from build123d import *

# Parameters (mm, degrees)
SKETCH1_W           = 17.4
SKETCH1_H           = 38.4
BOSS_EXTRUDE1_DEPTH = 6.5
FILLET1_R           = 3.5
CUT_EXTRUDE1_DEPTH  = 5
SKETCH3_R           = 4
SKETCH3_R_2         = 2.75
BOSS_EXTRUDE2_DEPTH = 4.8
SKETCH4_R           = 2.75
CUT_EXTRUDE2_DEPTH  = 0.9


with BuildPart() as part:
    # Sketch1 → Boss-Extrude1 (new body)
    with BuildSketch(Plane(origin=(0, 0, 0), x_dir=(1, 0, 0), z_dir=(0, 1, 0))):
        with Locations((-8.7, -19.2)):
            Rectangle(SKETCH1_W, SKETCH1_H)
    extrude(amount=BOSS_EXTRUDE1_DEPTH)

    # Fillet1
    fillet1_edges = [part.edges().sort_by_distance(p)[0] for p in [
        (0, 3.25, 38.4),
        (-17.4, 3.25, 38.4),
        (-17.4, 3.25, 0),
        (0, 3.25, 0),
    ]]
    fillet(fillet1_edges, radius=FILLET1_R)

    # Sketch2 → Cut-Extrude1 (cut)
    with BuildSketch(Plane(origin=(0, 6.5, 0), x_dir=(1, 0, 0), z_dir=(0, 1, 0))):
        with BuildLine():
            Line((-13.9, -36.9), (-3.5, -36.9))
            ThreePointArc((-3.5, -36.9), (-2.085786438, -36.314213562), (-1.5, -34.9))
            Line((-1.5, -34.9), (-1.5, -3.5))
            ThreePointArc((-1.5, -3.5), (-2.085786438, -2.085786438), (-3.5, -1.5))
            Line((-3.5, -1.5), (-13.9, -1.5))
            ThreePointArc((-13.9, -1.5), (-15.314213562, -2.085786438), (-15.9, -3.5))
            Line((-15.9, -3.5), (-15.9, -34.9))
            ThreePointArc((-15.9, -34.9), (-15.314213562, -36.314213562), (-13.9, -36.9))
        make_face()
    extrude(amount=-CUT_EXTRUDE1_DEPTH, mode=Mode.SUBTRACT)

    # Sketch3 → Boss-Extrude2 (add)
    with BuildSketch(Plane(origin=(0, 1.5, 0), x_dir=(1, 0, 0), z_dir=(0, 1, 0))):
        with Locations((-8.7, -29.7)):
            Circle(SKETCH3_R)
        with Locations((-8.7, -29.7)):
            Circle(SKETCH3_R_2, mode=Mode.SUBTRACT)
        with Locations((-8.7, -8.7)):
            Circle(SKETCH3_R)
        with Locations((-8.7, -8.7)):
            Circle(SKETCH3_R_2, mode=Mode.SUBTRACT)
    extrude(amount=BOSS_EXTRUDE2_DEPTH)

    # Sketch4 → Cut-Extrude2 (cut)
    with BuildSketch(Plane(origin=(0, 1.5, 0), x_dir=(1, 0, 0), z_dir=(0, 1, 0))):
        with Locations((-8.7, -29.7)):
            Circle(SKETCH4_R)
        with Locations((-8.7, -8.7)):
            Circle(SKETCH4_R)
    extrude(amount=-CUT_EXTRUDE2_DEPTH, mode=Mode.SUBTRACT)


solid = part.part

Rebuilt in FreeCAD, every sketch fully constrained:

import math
import FreeCAD as App
import Part
import Sketcher


def edges_at(feature, points):
    """Names of the edges that pass closest to the given points."""
    edges = feature.Shape.Edges
    near = lambda p: min(range(len(edges)), key=lambda i: edges[i].distToShape(Part.Vertex(*p))[0])
    return sorted({f"Edge{near(p) + 1}" for p in points})


def add_polygon(sketch, points):
    """Adds a closed chain of lines whose ends are joined by coincident constraints."""
    first, n = sketch.GeometryCount, len(points)
    for a, b in zip(points, points[1:] + points[:1]):
        sketch.addGeometry(Part.LineSegment(App.Vector(*a, 0), App.Vector(*b, 0)), False)
    for i in range(n):
        sketch.addConstraint(Sketcher.Constraint("Coincident", first + i, 2, first + (i + 1) % n, 1))

doc = App.newDocument("Part")
body = doc.addObject("PartDesign::Body", "Body")

# Sketch on XZ plane
sketch1 = body.newObject("Sketcher::SketchObject", "Sketch")
sketch1.AttachmentSupport = (doc.getObject("XZ_Plane"), [""])
sketch1.MapMode = "FlatFace"
add_polygon(sketch1, [(-17, 0), (-17, 38), (0, 38), (0, 0)])  # lines 0-3
sketch1.addConstraint([
    Sketcher.Constraint("Vertical", 0),
    Sketcher.Constraint("Horizontal", 1),
    Sketcher.Constraint("Vertical", 2),
    Sketcher.Constraint("Horizontal", 3),
    Sketcher.Constraint("Coincident", 2, 2, -1, 1),
    Sketcher.Constraint("DistanceX", 1, 1, 1, 2, 17.4),
    Sketcher.Constraint("DistanceY", 0, 1, 0, 2, 38.4),
])
pad1 = body.newObject("PartDesign::Pad", "Pad")
pad1.Profile = sketch1
pad1.Length = 6.5
pad1.Reversed = True
doc.recompute()

fillet = body.newObject("PartDesign::Fillet", "Fillet")
fillet.Base = (pad1, edges_at(pad1, [
    (0, 3.25, 38.4),
    (-17.4, 3.25, 38.4),
    (-17.4, 3.25, 0),
    (0, 3.25, 0),
]))
fillet.Radius = 3.5

# Sketch on XZ plane
sketch2 = body.newObject("Sketcher::SketchObject", "Sketch001")
sketch2.AttachmentSupport = (doc.getObject("XZ_Plane"), [""])
sketch2.MapMode = "FlatFace"
sketch2.AttachmentOffset = App.Placement(App.Vector(0, 0, -6.5), App.Rotation())
sketch2.addGeometry([
    Part.LineSegment(App.Vector(-13.9, 36.9, 0), App.Vector(-3.5, 36.9, 0)),  # 0
    Part.ArcOfCircle(Part.Circle(App.Vector(-3.5, 34.9, 0), App.Vector(0, 0, 1), 2), math.radians(0), math.radians(90)),  # 1
    Part.LineSegment(App.Vector(-1.5, 34.9, 0), App.Vector(-1.5, 3.5, 0)),  # 2
    Part.ArcOfCircle(Part.Circle(App.Vector(-3.5, 3.5, 0), App.Vector(0, 0, 1), 2), math.radians(-90), math.radians(0)),  # 3
    Part.LineSegment(App.Vector(-3.5, 1.5, 0), App.Vector(-13.9, 1.5, 0)),  # 4
    Part.ArcOfCircle(Part.Circle(App.Vector(-13.9, 3.5, 0), App.Vector(0, 0, 1), 2), math.radians(-180), math.radians(-90)),  # 5
    Part.LineSegment(App.Vector(-15.9, 3.5, 0), App.Vector(-15.9, 34.9, 0)),  # 6
    Part.ArcOfCircle(Part.Circle(App.Vector(-13.9, 34.9, 0), App.Vector(0, 0, 1), 2), math.radians(90), math.radians(180)),  # 7
], False)
sketch2.addConstraint([
    Sketcher.Constraint("Tangent", 0, 2, 1, 2),
    Sketcher.Constraint("Tangent", 1, 1, 2, 1),
    Sketcher.Constraint("Tangent", 2, 2, 3, 2),
    Sketcher.Constraint("Tangent", 3, 1, 4, 1),
    Sketcher.Constraint("Tangent", 4, 2, 5, 2),
    Sketcher.Constraint("Tangent", 5, 1, 6, 1),
    Sketcher.Constraint("Tangent", 6, 2, 7, 2),
    Sketcher.Constraint("Tangent", 7, 1, 0, 1),
    Sketcher.Constraint("Horizontal", 0),
    Sketcher.Constraint("Vertical", 2),
    Sketcher.Constraint("Horizontal", 4),
    Sketcher.Constraint("Vertical", 6),
    Sketcher.Constraint("Equal", 1, 3),
    Sketcher.Constraint("Equal", 3, 5),
    Sketcher.Constraint("Equal", 5, 7),
    Sketcher.Constraint("Radius", 1, 2.0),
    Sketcher.Constraint("DistanceX", 0, 1, 0, 2, 10.4),
    Sketcher.Constraint("DistanceY", 2, 2, 2, 1, 31.4),
    Sketcher.Constraint("DistanceX", 1, 3, -1, 1, 3.5),
    Sketcher.Constraint("DistanceY", -1, 1, 1, 3, 34.9),
])
pocket1 = body.newObject("PartDesign::Pocket", "Pocket")
pocket1.Profile = sketch2
pocket1.Length = 5
pocket1.Reversed = True

# Sketch on XZ plane
sketch3 = body.newObject("Sketcher::SketchObject", "Sketch002")
sketch3.AttachmentSupport = (doc.getObject("XZ_Plane"), [""])
sketch3.MapMode = "FlatFace"
sketch3.AttachmentOffset = App.Placement(App.Vector(0, 0, -1.5), App.Rotation())
sketch3.addGeometry([
    Part.Circle(App.Vector(-8.7, 29.7, 0), App.Vector(0, 0, 1), 4),
    Part.Circle(App.Vector(-8.7, 29.7, 0), App.Vector(0, 0, 1), 2.8),
    Part.Circle(App.Vector(-8.7, 8.7, 0), App.Vector(0, 0, 1), 4),
    Part.Circle(App.Vector(-8.7, 8.7, 0), App.Vector(0, 0, 1), 2.8),
], False)
sketch3.addConstraint([
    Sketcher.Constraint("Coincident", 1, 3, 0, 3),
    Sketcher.Constraint("Coincident", 3, 3, 2, 3),
    Sketcher.Constraint("Equal", 0, 2),
    Sketcher.Constraint("Equal", 1, 3),
    Sketcher.Constraint("Vertical", 1, 3, 2, 3),
    Sketcher.Constraint("Diameter", 0, 8.0),
    Sketcher.Constraint("Diameter", 1, 5.5),
    Sketcher.Constraint("DistanceY", 2, 3, 0, 3, 21.0),
    Sketcher.Constraint("DistanceX", 0, 3, -1, 1, 8.7),
    Sketcher.Constraint("DistanceY", -1, 1, 0, 3, 29.7),
])
pad2 = body.newObject("PartDesign::Pad", "Pad001")
pad2.Profile = sketch3
pad2.Length = 4.8
pad2.Reversed = True

# Sketch on XZ plane
sketch4 = body.newObject("Sketcher::SketchObject", "Sketch003")
sketch4.AttachmentSupport = (doc.getObject("XZ_Plane"), [""])
sketch4.MapMode = "FlatFace"
sketch4.AttachmentOffset = App.Placement(App.Vector(0, 0, -1.5), App.Rotation())
sketch4.addGeometry([
    Part.Circle(App.Vector(-8.7, 29.7, 0), App.Vector(0, 0, 1), 2.8),
    Part.Circle(App.Vector(-8.7, 8.7, 0), App.Vector(0, 0, 1), 2.8),
], False)
sketch4.addConstraint([
    Sketcher.Constraint("Equal", 0, 1),
    Sketcher.Constraint("Vertical", 0, 3, 1, 3),
    Sketcher.Constraint("Diameter", 0, 5.5),
    Sketcher.Constraint("DistanceY", 1, 3, 0, 3, 21.0),
    Sketcher.Constraint("DistanceX", 0, 3, -1, 1, 8.7),
    Sketcher.Constraint("DistanceY", -1, 1, 0, 3, 29.7),
])
pocket2 = body.newObject("PartDesign::Pocket", "Pocket001")
pocket2.Profile = sketch4
pocket2.Length = 0.9
pocket2.Reversed = True

doc.recompute()
